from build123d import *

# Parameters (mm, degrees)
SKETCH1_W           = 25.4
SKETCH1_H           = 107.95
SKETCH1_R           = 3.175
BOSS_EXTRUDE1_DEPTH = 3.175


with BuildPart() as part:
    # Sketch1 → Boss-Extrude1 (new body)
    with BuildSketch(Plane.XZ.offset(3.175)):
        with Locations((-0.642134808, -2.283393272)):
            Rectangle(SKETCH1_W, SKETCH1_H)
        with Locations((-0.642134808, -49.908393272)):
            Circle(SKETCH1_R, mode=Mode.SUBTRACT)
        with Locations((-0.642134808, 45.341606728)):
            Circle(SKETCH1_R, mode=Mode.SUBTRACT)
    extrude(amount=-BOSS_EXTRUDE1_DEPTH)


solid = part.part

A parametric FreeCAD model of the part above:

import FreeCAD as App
import Part
import Sketcher
from FreeCAD import Vector
Q = App.Units.Quantity

doc = App.newDocument("Part")
body = doc.addObject("PartDesign::Body", "Body")

sketch1 = body.newObject("Sketcher::SketchObject", "Sketch")
sketch1.AttachmentSupport = (doc.getObject("XZ_Plane"), [""])
sketch1.MapMode = "FlatFace"
sketch1.AttachmentOffset = App.Placement(Vector(0, 0, 0.125 * 25.4), App.Rotation())
sketch1.addGeometry(Part.LineSegment(Vector(-13.3, 51.7, 0), Vector(-13.3, -56.3, 0)), False)
sketch1.addGeometry(Part.LineSegment(Vector(-13.3, -56.3, 0), Vector(12.1, -56.3, 0)), False)
sketch1.addGeometry(Part.LineSegment(Vector(12.1, -56.3, 0), Vector(12.1, 51.7, 0)), False)
sketch1.addGeometry(Part.LineSegment(Vector(12.1, 51.7, 0), Vector(-13.3, 51.7, 0)), False)
sketch1.addGeometry(Part.Circle(Vector(-0.6, -49.9, 0), Vector(0, 0, 1), 3.2), False)
sketch1.addGeometry(Part.Circle(Vector(-0.6, 45.3, 0), Vector(0, 0, 1), 3.2), False)
sketch1.addConstraint(Sketcher.Constraint("Coincident", 0, 2, 1, 1))
sketch1.addConstraint(Sketcher.Constraint("Coincident", 1, 2, 2, 1))
sketch1.addConstraint(Sketcher.Constraint("Coincident", 2, 2, 3, 1))
sketch1.addConstraint(Sketcher.Constraint("Coincident", 3, 2, 0, 1))
sketch1.addConstraint(Sketcher.Constraint("Vertical", 0))
sketch1.addConstraint(Sketcher.Constraint("Horizontal", 1))
sketch1.addConstraint(Sketcher.Constraint("Vertical", 2))
sketch1.addConstraint(Sketcher.Constraint("Horizontal", 3))
sketch1.addConstraint(Sketcher.Constraint("Equal", 4, 5))
sketch1.addConstraint(Sketcher.Constraint("Vertical", 4, 3, 5, 3))
sketch1.addConstraint(Sketcher.Constraint("Diameter", 4, Q("0.25 in")))
sketch1.addConstraint(Sketcher.Constraint("DistanceX", 1, 1, 1, 2, Q("1 in")))
sketch1.addConstraint(Sketcher.Constraint("DistanceY", 0, 2, 5, 3, Q("4 in")))
sketch1.addConstraint(Sketcher.Constraint("DistanceY", 4, 3, 2, 2, Q("4 in")))
sketch1.addConstraint(Sketcher.Constraint("DistanceY", 0, 2, 0, 1, Q("4.25 in")))
sketch1.addConstraint(Sketcher.Constraint("DistanceX", 0, 2, 4, 3, Q("0.5 in")))
sketch1.addConstraint(Sketcher.Constraint("DistanceX", 4, 3, -1, 1, 0.642135))
sketch1.addConstraint(Sketcher.Constraint("DistanceY", 4, 3, -1, 1, 49.908393))
pad1 = body.newObject("PartDesign::Pad", "Pad")
pad1.Profile = sketch1
pad1.Length = Q("0.125 in")
pad1.Reversed = True

doc.recompute()
